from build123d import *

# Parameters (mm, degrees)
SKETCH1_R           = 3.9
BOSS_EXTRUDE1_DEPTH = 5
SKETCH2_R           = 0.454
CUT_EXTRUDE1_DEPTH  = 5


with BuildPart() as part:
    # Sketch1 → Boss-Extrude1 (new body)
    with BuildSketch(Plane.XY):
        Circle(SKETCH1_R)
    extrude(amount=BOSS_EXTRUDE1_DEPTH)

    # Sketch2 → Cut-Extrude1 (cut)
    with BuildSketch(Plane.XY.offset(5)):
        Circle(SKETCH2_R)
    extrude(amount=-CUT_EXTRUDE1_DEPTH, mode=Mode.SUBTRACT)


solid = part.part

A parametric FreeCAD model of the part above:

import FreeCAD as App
import Part
import Sketcher

V = App.Vector

doc = App.newDocument("Part")
body = doc.addObject("PartDesign::Body", "Body")

# Sketch on XY plane
sketch1 = body.newObject("Sketcher::SketchObject", "Sketch")
sketch1.AttachmentSupport = (doc.getObject("XY_Plane"), [""])
sketch1.MapMode = "FlatFace"
sketch1.addGeometry(Part.Circle(V(0, 0, 0), V(0, 0, 1), 3.9), False)
sketch1.addConstraint([
    Sketcher.Constraint("Coincident", 0, 3, -1, 1),
    Sketcher.Constraint("Diameter", 0, 7.8),
])
pad1 = body.newObject("PartDesign::Pad", "Pad")
pad1.Profile = sketch1
pad1.Length = 5

# Sketch on XY plane
sketch2 = body.newObject("Sketcher::SketchObject", "Sketch001")
sketch2.AttachmentSupport = (doc.getObject("XY_Plane"), [""])
sketch2.MapMode = "FlatFace"
sketch2.AttachmentOffset = App.Placement(V(0, 0, 5), App.Rotation())
sketch2.addGeometry(Part.Circle(V(0, 0, 0), V(0, 0, 1), 0.45), False)
sketch2.addConstraint([
    Sketcher.Constraint("Coincident", 0, 3, -1, 1),
    Sketcher.Constraint("Diameter", 0, 0.908),
])
pocket1 = body.newObject("PartDesign::Pocket", "Pocket")
pocket1.Profile = sketch2
pocket1.Length = 5

doc.recompute()
